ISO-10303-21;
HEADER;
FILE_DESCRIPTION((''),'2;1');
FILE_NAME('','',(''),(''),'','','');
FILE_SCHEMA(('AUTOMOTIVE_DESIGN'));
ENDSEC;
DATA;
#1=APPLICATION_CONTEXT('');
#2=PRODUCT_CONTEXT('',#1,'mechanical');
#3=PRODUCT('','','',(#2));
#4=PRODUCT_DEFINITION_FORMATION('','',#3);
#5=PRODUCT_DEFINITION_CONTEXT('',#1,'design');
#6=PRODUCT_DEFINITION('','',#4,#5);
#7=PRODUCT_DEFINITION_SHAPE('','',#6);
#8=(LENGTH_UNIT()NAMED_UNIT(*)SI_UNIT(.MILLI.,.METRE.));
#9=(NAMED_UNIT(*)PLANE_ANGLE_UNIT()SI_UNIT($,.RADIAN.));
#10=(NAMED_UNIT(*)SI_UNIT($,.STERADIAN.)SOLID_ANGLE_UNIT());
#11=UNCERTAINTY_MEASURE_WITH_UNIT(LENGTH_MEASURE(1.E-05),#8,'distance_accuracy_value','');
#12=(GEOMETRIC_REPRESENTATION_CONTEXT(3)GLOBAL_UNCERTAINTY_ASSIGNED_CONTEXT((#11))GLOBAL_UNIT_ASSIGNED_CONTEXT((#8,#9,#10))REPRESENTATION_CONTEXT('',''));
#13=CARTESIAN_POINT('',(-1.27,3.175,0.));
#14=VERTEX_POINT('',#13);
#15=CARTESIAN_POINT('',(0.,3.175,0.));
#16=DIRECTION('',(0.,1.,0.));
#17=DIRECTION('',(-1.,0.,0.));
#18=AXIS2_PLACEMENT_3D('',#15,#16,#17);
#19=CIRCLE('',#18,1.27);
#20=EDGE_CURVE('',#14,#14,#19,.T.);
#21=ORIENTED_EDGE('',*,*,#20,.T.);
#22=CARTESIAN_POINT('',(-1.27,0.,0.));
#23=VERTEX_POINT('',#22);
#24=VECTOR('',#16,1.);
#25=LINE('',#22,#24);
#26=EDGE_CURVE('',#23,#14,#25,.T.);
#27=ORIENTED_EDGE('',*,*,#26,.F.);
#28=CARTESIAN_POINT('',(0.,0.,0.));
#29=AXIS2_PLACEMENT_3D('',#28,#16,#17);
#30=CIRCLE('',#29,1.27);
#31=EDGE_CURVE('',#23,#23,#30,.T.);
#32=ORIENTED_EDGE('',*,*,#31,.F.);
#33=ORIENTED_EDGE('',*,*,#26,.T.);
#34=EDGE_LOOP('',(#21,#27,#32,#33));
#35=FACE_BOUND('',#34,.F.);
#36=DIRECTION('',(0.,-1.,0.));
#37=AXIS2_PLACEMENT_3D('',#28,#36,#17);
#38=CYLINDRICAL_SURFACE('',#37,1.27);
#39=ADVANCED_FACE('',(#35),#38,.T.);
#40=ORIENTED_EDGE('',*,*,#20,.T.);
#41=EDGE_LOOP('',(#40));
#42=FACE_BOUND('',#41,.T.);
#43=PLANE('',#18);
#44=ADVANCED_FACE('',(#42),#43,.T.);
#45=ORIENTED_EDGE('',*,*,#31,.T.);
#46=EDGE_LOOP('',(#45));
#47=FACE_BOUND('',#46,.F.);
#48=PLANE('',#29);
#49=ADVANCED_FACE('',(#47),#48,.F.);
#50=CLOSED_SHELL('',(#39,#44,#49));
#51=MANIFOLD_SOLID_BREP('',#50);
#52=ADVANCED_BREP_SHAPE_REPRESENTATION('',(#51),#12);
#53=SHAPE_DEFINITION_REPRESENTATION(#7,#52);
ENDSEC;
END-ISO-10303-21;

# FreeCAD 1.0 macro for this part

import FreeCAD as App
import Part
import Sketcher

V = App.Vector
Q = App.Units.Quantity

doc = App.newDocument("Part")
params = doc.addObject("Spreadsheet::Sheet", "Params")
for row, (alias, value) in enumerate([
    ("sketch1_diameter", "0.1 in"),
    ("pad1_length", "0.125 in"),
], start=1):
    params.set(f"A{row}", alias)
    params.set(f"B{row}", "=" + value)
    params.setAlias(f"B{row}", alias)

body = doc.addObject("PartDesign::Body", "Body")

# Sketch on XZ plane
sketch1 = body.newObject("Sketcher::SketchObject", "Sketch")
sketch1.AttachmentSupport = (doc.getObject("XZ_Plane"), [""])
sketch1.MapMode = "FlatFace"
sketch1.addGeometry(Part.Circle(V(0, 0, 0), V(0, 0, 1), 1.27), False)
sketch1.addConstraint([
    Sketcher.Constraint("Coincident", 0, 3, -1, 1),
    Sketcher.Constraint("Diameter", 0, Q("0.1 in")),
])
sketch1.setExpression("Constraints[1]", "Params.sketch1_diameter")
pad1 = body.newObject("PartDesign::Pad", "Pad")
pad1.Profile = sketch1
pad1.setExpression("Length", "Params.pad1_length")
pad1.Reversed = True

doc.recompute()
